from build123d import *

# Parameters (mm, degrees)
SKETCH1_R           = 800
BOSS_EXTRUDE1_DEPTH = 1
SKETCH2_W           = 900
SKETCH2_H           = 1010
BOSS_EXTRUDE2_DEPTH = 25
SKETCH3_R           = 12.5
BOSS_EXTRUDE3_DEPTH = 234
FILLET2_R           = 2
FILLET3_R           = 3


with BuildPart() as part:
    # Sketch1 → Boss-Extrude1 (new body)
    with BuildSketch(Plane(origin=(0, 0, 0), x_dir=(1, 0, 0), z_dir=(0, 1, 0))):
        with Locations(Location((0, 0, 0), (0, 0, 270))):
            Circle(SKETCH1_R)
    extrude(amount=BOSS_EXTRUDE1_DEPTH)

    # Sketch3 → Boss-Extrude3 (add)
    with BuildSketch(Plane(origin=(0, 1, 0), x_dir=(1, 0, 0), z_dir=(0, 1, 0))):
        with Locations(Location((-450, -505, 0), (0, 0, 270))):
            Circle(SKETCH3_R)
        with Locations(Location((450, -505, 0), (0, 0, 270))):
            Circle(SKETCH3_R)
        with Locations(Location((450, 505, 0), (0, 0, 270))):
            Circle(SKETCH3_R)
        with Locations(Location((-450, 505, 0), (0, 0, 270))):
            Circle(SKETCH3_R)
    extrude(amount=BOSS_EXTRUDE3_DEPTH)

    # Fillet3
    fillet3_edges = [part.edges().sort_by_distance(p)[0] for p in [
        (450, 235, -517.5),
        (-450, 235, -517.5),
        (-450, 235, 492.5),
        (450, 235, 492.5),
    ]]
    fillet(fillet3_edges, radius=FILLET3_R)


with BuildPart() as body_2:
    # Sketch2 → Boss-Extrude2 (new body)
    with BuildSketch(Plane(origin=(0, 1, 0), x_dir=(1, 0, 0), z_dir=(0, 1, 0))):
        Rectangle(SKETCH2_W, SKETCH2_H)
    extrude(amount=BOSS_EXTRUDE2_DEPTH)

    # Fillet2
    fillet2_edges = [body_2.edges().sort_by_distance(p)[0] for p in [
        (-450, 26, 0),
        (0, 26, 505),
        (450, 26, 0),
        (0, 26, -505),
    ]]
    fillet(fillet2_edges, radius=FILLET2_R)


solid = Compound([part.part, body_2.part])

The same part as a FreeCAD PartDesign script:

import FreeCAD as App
import Part
import Sketcher
Q = App.Units.Quantity


def edges_at(feature, points):
    """Names of the edges that pass closest to the given points."""
    edges = feature.Shape.Edges
    near = lambda p: min(range(len(edges)), key=lambda i: edges[i].distToShape(Part.Vertex(*p))[0])
    return sorted({f"Edge{near(p) + 1}" for p in points})


def add_polygon(sketch, points):
    """Adds a closed chain of lines whose ends are joined by coincident constraints."""
    first, n = sketch.GeometryCount, len(points)
    for a, b in zip(points, points[1:] + points[:1]):
        sketch.addGeometry(Part.LineSegment(App.Vector(*a, 0), App.Vector(*b, 0)), False)
    for i in range(n):
        sketch.addConstraint(Sketcher.Constraint("Coincident", first + i, 2, first + (i + 1) % n, 1))

doc = App.newDocument("Part")
body = doc.addObject("PartDesign::Body", "Body")

# Sketch on XZ plane
sketch1 = body.newObject("Sketcher::SketchObject", "Sketch")
sketch1.AttachmentSupport = (doc.getObject("XZ_Plane"), [""])
sketch1.MapMode = "FlatFace"
sketch1.addGeometry(Part.Circle(App.Vector(0, 0, 0), App.Vector(0, 0, 1), 800), False)
sketch1.addConstraint([
    Sketcher.Constraint("Coincident", 0, 3, -1, 1),
    Sketcher.Constraint("Diameter", 0, Q("1600 mm")),
])
pad1 = body.newObject("PartDesign::Pad", "Pad")
pad1.Profile = sketch1
pad1.Length = 1
pad1.Reversed = True

# Sketch on XZ plane
sketch2 = body.newObject("Sketcher::SketchObject", "Sketch001")
sketch2.AttachmentSupport = (doc.getObject("XZ_Plane"), [""])
sketch2.MapMode = "FlatFace"
sketch2.AttachmentOffset = App.Placement(App.Vector(0, 0, -1), App.Rotation())
sketch2.addGeometry([
    Part.Circle(App.Vector(-450, 505, 0), App.Vector(0, 0, 1), 12),
    Part.Circle(App.Vector(450, 505, 0), App.Vector(0, 0, 1), 12),
    Part.Circle(App.Vector(450, -505, 0), App.Vector(0, 0, 1), 12),
    Part.Circle(App.Vector(-450, -505, 0), App.Vector(0, 0, 1), 12),
], False)
sketch2.addConstraint([
    Sketcher.Constraint("Equal", 0, 1),
    Sketcher.Constraint("Equal", 1, 2),
    Sketcher.Constraint("Equal", 2, 3),
    Sketcher.Constraint("Symmetric", 0, 3, 2, 3, -1, 1),
    Sketcher.Constraint("Symmetric", 1, 3, 3, 3, -1, 1),
    Sketcher.Constraint("Symmetric", 0, 3, 1, 3, -2),
    Sketcher.Constraint("Diameter", 0, Q("25 mm")),
    Sketcher.Constraint("DistanceX", 0, 3, -1, 1, Q("450 mm")),
    Sketcher.Constraint("DistanceY", -1, 1, 0, 3, Q("505 mm")),
])
pad2 = body.newObject("PartDesign::Pad", "Pad001")
pad2.Profile = sketch2
pad2.Length = 234
pad2.Reversed = True
doc.recompute()

fillet = body.newObject("PartDesign::Fillet", "Fillet")
fillet.Base = (pad2, edges_at(pad2, [
    (450, 235, -517.5),
    (-450, 235, -517.5),
    (-450, 235, 492.5),
    (450, 235, 492.5),
]))
fillet.Radius = 3
body2 = doc.addObject("PartDesign::Body", "Body001")

# Sketch on XZ plane
sketch3 = body2.newObject("Sketcher::SketchObject", "Sketch002")
sketch3.AttachmentSupport = (doc.getObject("XZ_Plane001"), [""])
sketch3.MapMode = "FlatFace"
sketch3.AttachmentOffset = App.Placement(App.Vector(0, 0, -1), App.Rotation())
add_polygon(sketch3, [(-450, -505), (-450, 505), (450, 505), (450, -505)])  # lines 0-3
sketch3.addConstraint([
    Sketcher.Constraint("Vertical", 0),
    Sketcher.Constraint("Horizontal", 1),
    Sketcher.Constraint("Vertical", 2),
    Sketcher.Constraint("Horizontal", 3),
    Sketcher.Constraint("Symmetric", 0, 2, 2, 2, -1, 1),
    Sketcher.Constraint("DistanceX", 1, 1, 1, 2, Q("900 mm")),
    Sketcher.Constraint("DistanceY", 0, 1, 0, 2, Q("1010 mm")),
])
pad3 = body2.newObject("PartDesign::Pad", "Pad002")
pad3.Profile = sketch3
pad3.Length = 25
pad3.Reversed = True
doc.recompute()

fillet2 = body2.newObject("PartDesign::Fillet", "Fillet001")
fillet2.Base = (pad3, edges_at(pad3, [
    (-450, 26, 0),
    (0, 26, 505),
    (450, 26, 0),
    (0, 26, -505),
]))
fillet2.Radius = 2

doc.recompute()
